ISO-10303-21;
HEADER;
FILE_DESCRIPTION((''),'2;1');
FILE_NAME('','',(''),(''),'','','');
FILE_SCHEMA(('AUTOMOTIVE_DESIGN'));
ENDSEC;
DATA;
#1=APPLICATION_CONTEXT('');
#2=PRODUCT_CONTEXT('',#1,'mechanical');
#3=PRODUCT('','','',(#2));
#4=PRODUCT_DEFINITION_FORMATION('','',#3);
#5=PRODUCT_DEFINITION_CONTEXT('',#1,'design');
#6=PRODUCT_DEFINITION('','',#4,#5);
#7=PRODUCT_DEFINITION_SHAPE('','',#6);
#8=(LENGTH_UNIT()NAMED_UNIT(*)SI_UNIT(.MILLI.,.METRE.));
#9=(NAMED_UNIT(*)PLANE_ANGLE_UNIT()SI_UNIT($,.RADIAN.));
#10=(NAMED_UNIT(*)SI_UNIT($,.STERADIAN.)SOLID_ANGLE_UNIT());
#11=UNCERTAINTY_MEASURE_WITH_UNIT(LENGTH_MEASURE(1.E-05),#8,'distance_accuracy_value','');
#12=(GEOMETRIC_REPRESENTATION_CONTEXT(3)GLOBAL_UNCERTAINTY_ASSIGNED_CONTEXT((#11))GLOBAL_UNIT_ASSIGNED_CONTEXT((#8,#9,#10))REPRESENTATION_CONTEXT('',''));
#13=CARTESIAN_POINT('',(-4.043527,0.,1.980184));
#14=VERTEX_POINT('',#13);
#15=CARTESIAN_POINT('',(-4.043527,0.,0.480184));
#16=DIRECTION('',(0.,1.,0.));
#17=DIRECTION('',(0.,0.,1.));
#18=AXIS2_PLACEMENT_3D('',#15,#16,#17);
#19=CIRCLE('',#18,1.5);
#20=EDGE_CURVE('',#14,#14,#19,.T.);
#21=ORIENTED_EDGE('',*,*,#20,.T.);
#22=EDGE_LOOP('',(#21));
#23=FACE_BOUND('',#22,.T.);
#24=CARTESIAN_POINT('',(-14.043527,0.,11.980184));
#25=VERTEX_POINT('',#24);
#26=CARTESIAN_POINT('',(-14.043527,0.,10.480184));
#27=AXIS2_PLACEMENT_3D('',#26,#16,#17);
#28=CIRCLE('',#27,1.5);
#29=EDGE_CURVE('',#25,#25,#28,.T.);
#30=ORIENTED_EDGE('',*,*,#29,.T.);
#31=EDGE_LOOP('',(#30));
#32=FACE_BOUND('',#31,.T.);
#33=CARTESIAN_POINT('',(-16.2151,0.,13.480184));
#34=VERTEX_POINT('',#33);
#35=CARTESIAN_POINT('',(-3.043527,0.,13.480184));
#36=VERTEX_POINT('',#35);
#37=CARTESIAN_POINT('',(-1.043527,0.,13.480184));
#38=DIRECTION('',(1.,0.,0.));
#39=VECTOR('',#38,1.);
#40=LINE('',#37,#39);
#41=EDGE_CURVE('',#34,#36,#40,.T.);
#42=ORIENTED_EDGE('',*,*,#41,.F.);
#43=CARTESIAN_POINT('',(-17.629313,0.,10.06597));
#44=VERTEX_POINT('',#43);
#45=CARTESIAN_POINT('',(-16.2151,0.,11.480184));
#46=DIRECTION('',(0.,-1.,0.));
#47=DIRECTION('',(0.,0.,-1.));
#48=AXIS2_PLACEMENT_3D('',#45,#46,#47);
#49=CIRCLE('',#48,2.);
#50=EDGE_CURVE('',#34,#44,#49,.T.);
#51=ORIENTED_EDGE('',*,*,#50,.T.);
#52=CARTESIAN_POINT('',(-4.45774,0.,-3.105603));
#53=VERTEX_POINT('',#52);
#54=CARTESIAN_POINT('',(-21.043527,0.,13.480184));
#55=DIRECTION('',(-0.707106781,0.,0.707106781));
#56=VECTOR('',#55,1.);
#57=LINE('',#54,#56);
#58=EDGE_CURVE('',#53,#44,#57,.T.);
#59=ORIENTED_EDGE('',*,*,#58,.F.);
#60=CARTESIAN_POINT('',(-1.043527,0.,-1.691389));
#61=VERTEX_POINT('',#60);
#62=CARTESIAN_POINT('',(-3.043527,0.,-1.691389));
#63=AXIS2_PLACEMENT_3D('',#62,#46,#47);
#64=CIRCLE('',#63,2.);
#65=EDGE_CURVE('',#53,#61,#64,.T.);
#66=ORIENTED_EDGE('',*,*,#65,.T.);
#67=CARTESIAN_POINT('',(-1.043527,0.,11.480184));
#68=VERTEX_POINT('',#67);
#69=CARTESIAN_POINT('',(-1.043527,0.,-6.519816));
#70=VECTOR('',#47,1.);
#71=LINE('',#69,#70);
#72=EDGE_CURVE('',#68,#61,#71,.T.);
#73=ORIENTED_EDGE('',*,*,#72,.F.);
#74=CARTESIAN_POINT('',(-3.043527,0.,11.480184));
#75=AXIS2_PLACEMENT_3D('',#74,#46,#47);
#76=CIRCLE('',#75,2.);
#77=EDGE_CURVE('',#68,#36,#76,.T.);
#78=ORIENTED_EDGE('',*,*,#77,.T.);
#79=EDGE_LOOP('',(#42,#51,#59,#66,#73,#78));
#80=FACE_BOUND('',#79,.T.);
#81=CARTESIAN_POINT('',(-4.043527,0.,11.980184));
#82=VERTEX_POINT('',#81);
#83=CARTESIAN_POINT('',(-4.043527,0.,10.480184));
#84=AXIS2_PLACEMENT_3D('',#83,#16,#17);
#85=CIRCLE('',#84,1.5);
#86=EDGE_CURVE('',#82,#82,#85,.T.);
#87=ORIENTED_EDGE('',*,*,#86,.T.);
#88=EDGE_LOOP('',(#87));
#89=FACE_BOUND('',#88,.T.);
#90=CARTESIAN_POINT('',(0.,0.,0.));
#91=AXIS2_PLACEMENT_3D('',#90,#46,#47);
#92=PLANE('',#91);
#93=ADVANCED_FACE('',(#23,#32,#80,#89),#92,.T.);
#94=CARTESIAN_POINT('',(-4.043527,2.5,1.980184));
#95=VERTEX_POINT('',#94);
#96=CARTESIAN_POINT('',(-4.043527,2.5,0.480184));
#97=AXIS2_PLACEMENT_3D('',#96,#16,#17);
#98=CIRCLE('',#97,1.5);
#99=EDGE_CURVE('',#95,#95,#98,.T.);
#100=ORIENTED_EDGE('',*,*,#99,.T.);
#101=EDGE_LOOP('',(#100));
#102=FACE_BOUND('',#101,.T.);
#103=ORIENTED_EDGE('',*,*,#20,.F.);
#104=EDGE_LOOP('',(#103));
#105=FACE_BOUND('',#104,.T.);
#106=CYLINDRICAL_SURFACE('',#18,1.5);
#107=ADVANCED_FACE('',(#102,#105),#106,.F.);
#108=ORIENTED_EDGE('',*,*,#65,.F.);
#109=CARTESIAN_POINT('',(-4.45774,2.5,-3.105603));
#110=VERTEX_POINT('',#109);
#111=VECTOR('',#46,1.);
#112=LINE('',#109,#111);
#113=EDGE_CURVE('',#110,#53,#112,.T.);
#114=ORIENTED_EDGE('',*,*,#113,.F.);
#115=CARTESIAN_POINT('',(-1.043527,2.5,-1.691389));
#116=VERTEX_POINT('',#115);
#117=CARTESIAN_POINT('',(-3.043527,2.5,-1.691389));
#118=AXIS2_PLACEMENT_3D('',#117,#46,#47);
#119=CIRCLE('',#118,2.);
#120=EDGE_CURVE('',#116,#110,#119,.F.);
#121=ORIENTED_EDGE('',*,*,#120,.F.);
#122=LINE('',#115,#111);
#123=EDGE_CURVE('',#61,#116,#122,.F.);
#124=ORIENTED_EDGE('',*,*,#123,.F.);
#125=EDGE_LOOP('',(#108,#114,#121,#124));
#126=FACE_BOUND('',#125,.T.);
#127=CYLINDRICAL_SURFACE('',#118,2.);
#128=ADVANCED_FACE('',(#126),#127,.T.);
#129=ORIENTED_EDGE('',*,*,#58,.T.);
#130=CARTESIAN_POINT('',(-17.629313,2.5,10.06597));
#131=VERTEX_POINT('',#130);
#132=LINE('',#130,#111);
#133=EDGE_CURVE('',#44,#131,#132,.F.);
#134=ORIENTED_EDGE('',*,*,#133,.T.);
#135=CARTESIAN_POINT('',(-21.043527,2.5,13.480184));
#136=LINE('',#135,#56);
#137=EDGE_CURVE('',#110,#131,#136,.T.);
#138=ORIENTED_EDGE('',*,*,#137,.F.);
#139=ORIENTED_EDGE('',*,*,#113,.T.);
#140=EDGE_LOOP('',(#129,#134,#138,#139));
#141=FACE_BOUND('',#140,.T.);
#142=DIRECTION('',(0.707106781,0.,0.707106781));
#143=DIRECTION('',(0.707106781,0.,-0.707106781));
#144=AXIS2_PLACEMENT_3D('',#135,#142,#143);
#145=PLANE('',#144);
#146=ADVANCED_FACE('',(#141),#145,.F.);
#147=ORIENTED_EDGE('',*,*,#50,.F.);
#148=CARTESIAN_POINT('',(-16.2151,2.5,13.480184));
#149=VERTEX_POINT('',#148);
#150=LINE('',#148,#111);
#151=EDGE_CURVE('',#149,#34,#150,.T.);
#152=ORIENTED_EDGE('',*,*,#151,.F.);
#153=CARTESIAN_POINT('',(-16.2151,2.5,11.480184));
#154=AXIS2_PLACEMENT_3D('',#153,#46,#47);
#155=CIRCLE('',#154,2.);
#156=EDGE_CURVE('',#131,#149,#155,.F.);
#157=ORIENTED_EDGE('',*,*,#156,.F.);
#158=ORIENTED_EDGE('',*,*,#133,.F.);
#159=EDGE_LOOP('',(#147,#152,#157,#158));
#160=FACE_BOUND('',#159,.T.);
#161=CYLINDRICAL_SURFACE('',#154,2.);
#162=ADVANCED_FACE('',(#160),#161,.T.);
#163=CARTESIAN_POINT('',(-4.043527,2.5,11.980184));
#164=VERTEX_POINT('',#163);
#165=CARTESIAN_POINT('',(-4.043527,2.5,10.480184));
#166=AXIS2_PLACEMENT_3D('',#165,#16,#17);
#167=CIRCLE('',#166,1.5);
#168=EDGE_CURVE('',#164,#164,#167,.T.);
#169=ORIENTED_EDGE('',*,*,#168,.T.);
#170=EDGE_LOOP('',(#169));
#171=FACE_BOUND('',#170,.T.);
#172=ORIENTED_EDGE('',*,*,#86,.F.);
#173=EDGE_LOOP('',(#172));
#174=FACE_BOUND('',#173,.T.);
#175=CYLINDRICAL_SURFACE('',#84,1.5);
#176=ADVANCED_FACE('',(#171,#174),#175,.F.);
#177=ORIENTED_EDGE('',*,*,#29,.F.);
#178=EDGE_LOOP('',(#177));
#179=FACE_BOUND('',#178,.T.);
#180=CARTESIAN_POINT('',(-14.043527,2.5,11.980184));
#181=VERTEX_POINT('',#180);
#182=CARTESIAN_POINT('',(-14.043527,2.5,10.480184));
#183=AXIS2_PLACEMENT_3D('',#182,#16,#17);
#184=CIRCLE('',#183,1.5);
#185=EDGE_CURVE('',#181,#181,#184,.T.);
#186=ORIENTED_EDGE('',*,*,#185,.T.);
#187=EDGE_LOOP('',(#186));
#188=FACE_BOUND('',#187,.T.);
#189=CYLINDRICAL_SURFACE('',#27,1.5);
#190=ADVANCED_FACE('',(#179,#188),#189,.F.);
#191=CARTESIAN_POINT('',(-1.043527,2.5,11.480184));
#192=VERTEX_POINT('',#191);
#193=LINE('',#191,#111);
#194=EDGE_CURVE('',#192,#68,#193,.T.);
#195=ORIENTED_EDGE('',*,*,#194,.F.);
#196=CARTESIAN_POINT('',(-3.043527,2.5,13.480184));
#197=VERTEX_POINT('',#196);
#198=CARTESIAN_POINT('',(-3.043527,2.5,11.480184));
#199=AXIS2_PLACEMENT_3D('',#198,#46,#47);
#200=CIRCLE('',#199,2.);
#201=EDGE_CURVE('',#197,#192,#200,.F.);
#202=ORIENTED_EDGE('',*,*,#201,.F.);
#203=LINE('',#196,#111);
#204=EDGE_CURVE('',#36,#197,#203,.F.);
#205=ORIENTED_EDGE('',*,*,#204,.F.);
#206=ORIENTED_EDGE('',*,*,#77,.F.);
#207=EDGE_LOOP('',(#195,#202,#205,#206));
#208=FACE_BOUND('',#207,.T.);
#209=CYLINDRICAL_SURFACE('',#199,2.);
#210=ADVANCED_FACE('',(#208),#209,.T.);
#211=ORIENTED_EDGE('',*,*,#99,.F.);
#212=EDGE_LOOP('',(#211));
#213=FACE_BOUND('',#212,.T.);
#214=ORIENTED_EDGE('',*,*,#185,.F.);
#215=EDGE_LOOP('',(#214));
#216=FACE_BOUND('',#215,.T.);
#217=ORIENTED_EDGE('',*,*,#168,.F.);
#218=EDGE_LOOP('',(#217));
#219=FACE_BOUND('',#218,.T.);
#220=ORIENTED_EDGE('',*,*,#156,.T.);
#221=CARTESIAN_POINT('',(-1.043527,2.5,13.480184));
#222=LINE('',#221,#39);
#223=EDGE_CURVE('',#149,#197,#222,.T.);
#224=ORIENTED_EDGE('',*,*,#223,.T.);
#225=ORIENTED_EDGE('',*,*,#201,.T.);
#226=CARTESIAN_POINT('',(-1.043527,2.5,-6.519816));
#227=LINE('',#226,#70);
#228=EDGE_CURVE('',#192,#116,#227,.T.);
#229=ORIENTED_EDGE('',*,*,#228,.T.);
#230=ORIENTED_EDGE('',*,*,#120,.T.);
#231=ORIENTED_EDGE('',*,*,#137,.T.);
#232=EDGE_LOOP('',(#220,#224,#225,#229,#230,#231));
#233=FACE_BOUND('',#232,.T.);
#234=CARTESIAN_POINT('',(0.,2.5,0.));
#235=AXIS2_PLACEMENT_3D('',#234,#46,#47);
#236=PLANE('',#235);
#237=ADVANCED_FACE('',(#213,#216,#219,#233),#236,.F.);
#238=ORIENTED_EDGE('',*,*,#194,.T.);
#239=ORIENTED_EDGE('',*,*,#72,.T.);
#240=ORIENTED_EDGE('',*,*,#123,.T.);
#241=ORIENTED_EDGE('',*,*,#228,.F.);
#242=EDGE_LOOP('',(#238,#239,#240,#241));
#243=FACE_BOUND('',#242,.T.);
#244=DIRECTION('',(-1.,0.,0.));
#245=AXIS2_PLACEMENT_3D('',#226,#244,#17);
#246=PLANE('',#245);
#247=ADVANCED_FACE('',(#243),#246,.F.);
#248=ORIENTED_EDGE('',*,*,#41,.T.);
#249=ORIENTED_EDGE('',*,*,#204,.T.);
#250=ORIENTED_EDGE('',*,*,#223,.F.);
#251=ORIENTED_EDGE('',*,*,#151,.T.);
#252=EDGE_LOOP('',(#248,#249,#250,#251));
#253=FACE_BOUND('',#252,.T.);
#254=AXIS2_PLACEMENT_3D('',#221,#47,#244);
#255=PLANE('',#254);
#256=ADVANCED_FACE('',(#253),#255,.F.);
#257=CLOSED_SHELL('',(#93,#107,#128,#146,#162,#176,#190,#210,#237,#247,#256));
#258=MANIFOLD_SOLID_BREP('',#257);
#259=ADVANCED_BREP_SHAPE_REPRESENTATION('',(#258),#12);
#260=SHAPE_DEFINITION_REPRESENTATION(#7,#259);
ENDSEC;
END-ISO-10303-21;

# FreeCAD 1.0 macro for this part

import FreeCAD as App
import Part
import Sketcher

V = App.Vector


def edges_at(feature, points):
    """Names of the edges that pass closest to the given points."""
    edges = feature.Shape.Edges
    near = lambda p: min(range(len(edges)), key=lambda i: edges[i].distToShape(Part.Vertex(*p))[0])
    return sorted({f"Edge{near(p) + 1}" for p in points})

doc = App.newDocument("Part")
body = doc.addObject("PartDesign::Body", "Body")

# Sketch on XZ plane
sketch1 = doc.addObject("Sketcher::SketchObject", "Sketch")
body.addObject(sketch1)
sketch1.AttachmentSupport = (doc.XZ_Plane, [""])
sketch1.MapMode = "FlatFace"
sketch1.addGeometry(Part.LineSegment(V(-1, 13, 0), V(-1, -7, 0)), False)
sketch1.addGeometry(Part.LineSegment(V(-1, -7, 0), V(-21, 13, 0)), False)
sketch1.addGeometry(Part.LineSegment(V(-21, 13, 0), V(-1, 13, 0)), False)
sketch1.addConstraint(Sketcher.Constraint("Coincident", 0, 2, 1, 1))
sketch1.addConstraint(Sketcher.Constraint("Coincident", 1, 2, 2, 1))
sketch1.addConstraint(Sketcher.Constraint("Coincident", 2, 2, 0, 1))
sketch1.addConstraint(Sketcher.Constraint("Vertical", 0))
sketch1.addConstraint(Sketcher.Constraint("Horizontal", 2))
sketch1.addConstraint(Sketcher.Constraint("Equal", 2, 0))
sketch1.addConstraint(Sketcher.Constraint("DistanceX", 2, 1, 2, 2, 20.0))
sketch1.addConstraint(Sketcher.Constraint("DistanceX", 0, 2, -1, 1, 1.043527))
sketch1.addConstraint(Sketcher.Constraint("DistanceY", 0, 2, -1, 1, 6.519816))
pad1 = doc.addObject("PartDesign::Pad", "Pad")
body.addObject(pad1)
pad1.Profile = sketch1
pad1.Length = 2.5
pad1.Reversed = True
doc.recompute()

fillet = doc.addObject("PartDesign::Fillet", "Fillet")
body.addObject(fillet)
fillet.Base = (pad1, edges_at(pad1, [(-1.044, 1.25, -6.52), (-1.044, 1.25, 13.48), (-21.044, 1.25, 13.48)]))
fillet.Radius = 2

# Sketch on XZ plane
sketch2 = doc.addObject("Sketcher::SketchObject", "Sketch001")
body.addObject(sketch2)
sketch2.AttachmentSupport = (doc.XZ_Plane, [""])
sketch2.MapMode = "FlatFace"
sketch2.AttachmentOffset = App.Placement(V(0, 0, -2.5), App.Rotation())
sketch2.addGeometry(Part.Circle(V(-4, 0.5, 0), V(0, 0, 1), 1.5), False)
sketch2.addGeometry(Part.Circle(V(-4, 10.5, 0), V(0, 0, 1), 1.5), False)
sketch2.addGeometry(Part.Circle(V(-14, 10.5, 0), V(0, 0, 1), 1.5), False)
sketch2.addConstraint(Sketcher.Constraint("Equal", 0, 1))
sketch2.addConstraint(Sketcher.Constraint("Equal", 1, 2))
sketch2.addConstraint(Sketcher.Constraint("Horizontal", 1, 3, 2, 3))
sketch2.addConstraint(Sketcher.Constraint("Vertical", 0, 3, 1, 3))
sketch2.addConstraint(Sketcher.Constraint("Diameter", 0, 3.0))
sketch2.addConstraint(Sketcher.Constraint("DistanceY", 0, 3, 1, 3, 10.0))
sketch2.addConstraint(Sketcher.Constraint("DistanceX", 2, 3, 1, 3, 10.0))
sketch2.addConstraint(Sketcher.Constraint("DistanceX", 0, 3, -1, 1, 4.043527))
sketch2.addConstraint(Sketcher.Constraint("DistanceY", -1, 1, 0, 3, 0.480184))
pocket1 = doc.addObject("PartDesign::Pocket", "Pocket")
body.addObject(pocket1)
pocket1.Profile = sketch2
pocket1.Type = "ThroughAll"
pocket1.Reversed = True

doc.recompute()
